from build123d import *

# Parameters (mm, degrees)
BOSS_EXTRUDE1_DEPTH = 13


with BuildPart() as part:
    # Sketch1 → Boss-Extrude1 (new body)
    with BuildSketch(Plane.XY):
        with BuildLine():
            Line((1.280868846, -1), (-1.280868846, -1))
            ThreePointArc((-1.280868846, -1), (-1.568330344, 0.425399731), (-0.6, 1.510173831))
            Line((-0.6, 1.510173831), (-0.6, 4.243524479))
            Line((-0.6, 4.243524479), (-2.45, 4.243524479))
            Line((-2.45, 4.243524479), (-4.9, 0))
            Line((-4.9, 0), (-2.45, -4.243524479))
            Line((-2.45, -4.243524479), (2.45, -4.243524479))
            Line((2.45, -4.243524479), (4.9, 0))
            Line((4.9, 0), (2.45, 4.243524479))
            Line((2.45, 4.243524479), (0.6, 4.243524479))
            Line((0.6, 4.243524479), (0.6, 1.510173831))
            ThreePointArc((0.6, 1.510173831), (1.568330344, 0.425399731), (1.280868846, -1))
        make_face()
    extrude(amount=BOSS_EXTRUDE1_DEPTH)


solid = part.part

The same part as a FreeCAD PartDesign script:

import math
import FreeCAD as App
import Part
import Sketcher
from FreeCAD import Vector
Q = App.Units.Quantity

doc = App.newDocument("Part")
body = doc.addObject("PartDesign::Body", "Body")

# Sketch on XY plane
sketch1 = body.newObject("Sketcher::SketchObject", "Sketch")
sketch1.AttachmentSupport = (doc.getObject("XY_Plane"), [""])
sketch1.MapMode = "FlatFace"
sketch1.addGeometry(Part.LineSegment(Vector(1.3, -1, 0), Vector(-1.3, -1, 0)), False)
sketch1.addGeometry(Part.ArcOfCircle(Part.Circle(Vector(0, 0, 0), Vector(0, 0, 1), 1.6), math.radians(112), math.radians(218)), False)
sketch1.addGeometry(Part.LineSegment(Vector(-0.6, 1.5, 0), Vector(-0.6, 4.2, 0)), False)
sketch1.addGeometry(Part.LineSegment(Vector(-0.6, 4.2, 0), Vector(-2.5, 4.2, 0)), False)
sketch1.addGeometry(Part.LineSegment(Vector(-2.5, 4.2, 0), Vector(-4.9, 0, 0)), False)
sketch1.addGeometry(Part.LineSegment(Vector(-4.9, 0, 0), Vector(-2.5, -4.2, 0)), False)
sketch1.addGeometry(Part.LineSegment(Vector(-2.5, -4.2, 0), Vector(2.5, -4.2, 0)), False)
sketch1.addGeometry(Part.LineSegment(Vector(2.5, -4.2, 0), Vector(4.9, 0, 0)), False)
sketch1.addGeometry(Part.LineSegment(Vector(4.9, 0, 0), Vector(2.5, 4.2, 0)), False)
sketch1.addGeometry(Part.LineSegment(Vector(2.5, 4.2, 0), Vector(0.6, 4.2, 0)), False)
sketch1.addGeometry(Part.LineSegment(Vector(0.6, 4.2, 0), Vector(0.6, 1.5, 0)), False)
sketch1.addGeometry(Part.ArcOfCircle(Part.Circle(Vector(0, 0, 0), Vector(0, 0, 1), 1.6), math.radians(-38), math.radians(68)), False)
sketch1.addConstraint(Sketcher.Constraint("Coincident", 0, 2, 1, 2))
sketch1.addConstraint(Sketcher.Constraint("Coincident", 1, 1, 2, 1))
sketch1.addConstraint(Sketcher.Constraint("Coincident", 2, 2, 3, 1))
sketch1.addConstraint(Sketcher.Constraint("Coincident", 3, 2, 4, 1))
sketch1.addConstraint(Sketcher.Constraint("Coincident", 4, 2, 5, 1))
sketch1.addConstraint(Sketcher.Constraint("Coincident", 5, 2, 6, 1))
sketch1.addConstraint(Sketcher.Constraint("Coincident", 6, 2, 7, 1))
sketch1.addConstraint(Sketcher.Constraint("Coincident", 7, 2, 8, 1))
sketch1.addConstraint(Sketcher.Constraint("Coincident", 8, 2, 9, 1))
sketch1.addConstraint(Sketcher.Constraint("Coincident", 9, 2, 10, 1))
sketch1.addConstraint(Sketcher.Constraint("Coincident", 10, 2, 11, 2))
sketch1.addConstraint(Sketcher.Constraint("Coincident", 11, 1, 0, 1))
sketch1.addConstraint(Sketcher.Constraint("Horizontal", 0))
sketch1.addConstraint(Sketcher.Constraint("Vertical", 2))
sketch1.addConstraint(Sketcher.Constraint("Horizontal", 3))
sketch1.addConstraint(Sketcher.Constraint("Horizontal", 6))
sketch1.addConstraint(Sketcher.Constraint("Horizontal", 9))
sketch1.addConstraint(Sketcher.Constraint("Vertical", 10))
sketch1.addConstraint(Sketcher.Constraint("Coincident", 1, 3, -1, 1))
sketch1.addConstraint(Sketcher.Constraint("Coincident", 11, 3, -1, 1))
sketch1.addConstraint(Sketcher.Constraint("Equal", 1, 11))
sketch1.addConstraint(Sketcher.Constraint("Symmetric", 3, 2, 6, 2, -1, 1))
sketch1.addConstraint(Sketcher.Constraint("Symmetric", 4, 2, 7, 2, -1, 1))
sketch1.addConstraint(Sketcher.Constraint("Symmetric", 5, 2, 8, 2, -1, 1))
sketch1.addConstraint(Sketcher.Constraint("PointOnObject", 4, 2, -1))
sketch1.addConstraint(Sketcher.Constraint("Horizontal", 1, 1, 10, 2))
sketch1.addConstraint(Sketcher.Constraint("Vertical", 3, 2, 5, 2))
sketch1.addConstraint(Sketcher.Constraint("Angle", 4, Q("-120 deg")))
sketch1.addConstraint(Sketcher.Constraint("DistanceX", 6, 1, 6, 2, 4.9))
sketch1.addConstraint(Sketcher.Constraint("DistanceY", 0, 2, -1, 1, 1.0))
sketch1.addConstraint(Sketcher.Constraint("Radius", 1, 1.625))
sketch1.addConstraint(Sketcher.Constraint("Distance", 4, 4.9))
sketch1.addConstraint(Sketcher.Constraint("DistanceX", 3, 2, 3, 1, 1.85))
pad1 = body.newObject("PartDesign::Pad", "Pad")
pad1.Profile = sketch1
pad1.Length = 13

doc.recompute()
